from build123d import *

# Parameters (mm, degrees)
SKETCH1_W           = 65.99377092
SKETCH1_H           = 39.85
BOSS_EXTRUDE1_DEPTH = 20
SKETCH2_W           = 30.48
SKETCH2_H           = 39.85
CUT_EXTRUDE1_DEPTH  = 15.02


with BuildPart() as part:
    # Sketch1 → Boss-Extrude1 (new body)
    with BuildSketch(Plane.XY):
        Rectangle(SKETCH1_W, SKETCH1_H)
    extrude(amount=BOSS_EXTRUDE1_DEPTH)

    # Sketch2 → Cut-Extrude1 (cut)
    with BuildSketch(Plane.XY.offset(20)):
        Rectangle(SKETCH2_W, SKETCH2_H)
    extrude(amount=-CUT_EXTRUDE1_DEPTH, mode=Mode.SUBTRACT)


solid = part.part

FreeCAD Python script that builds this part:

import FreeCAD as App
import Part
import Sketcher

doc = App.newDocument("Part")
params = doc.addObject("Spreadsheet::Sheet", "Params")
for row, (alias, value) in enumerate([
    ("sketch1_height", "39.85 mm"),
    ("pad1_length", "20 mm"),
    ("sketch2_width", "30.48 mm"),
    ("sketch2_height", "39.85 mm"),
    ("pocket1_length", "15.02 mm"),
], start=1):
    params.set(f"A{row}", alias)
    params.set(f"B{row}", "=" + value)
    params.setAlias(f"B{row}", alias)

body = doc.addObject("PartDesign::Body", "Body")

sketch1 = body.newObject("Sketcher::SketchObject", "Sketch")
sketch1.AttachmentSupport = (doc.getObject("XY_Plane"), [""])
sketch1.MapMode = "FlatFace"
sketch1.addGeometry([
    Part.LineSegment(App.Vector(-33, 20, 0), App.Vector(-33, -20, 0)),
    Part.LineSegment(App.Vector(-33, -20, 0), App.Vector(33, -20, 0)),
    Part.LineSegment(App.Vector(33, -20, 0), App.Vector(33, 20, 0)),
    Part.LineSegment(App.Vector(33, 20, 0), App.Vector(-33, 20, 0)),
], False)
sketch1.addConstraint([
    Sketcher.Constraint("Coincident", 0, 2, 1, 1),
    Sketcher.Constraint("Coincident", 1, 2, 2, 1),
    Sketcher.Constraint("Coincident", 2, 2, 3, 1),
    Sketcher.Constraint("Coincident", 3, 2, 0, 1),
    Sketcher.Constraint("Vertical", 0),
    Sketcher.Constraint("Horizontal", 1),
    Sketcher.Constraint("Vertical", 2),
    Sketcher.Constraint("Horizontal", 3),
    Sketcher.Constraint("Symmetric", 0, 2, 2, 2, -1, 1),
    Sketcher.Constraint("DistanceY", 0, 2, 0, 1, 39.85),
    Sketcher.Constraint("DistanceX", 1, 1, 1, 2, 65.993771),
])
sketch1.setExpression("Constraints[9]", "Params.sketch1_height")
pad1 = body.newObject("PartDesign::Pad", "Pad")
pad1.Profile = sketch1
pad1.setExpression("Length", "Params.pad1_length")

sketch2 = body.newObject("Sketcher::SketchObject", "Sketch001")
sketch2.AttachmentSupport = (doc.getObject("XY_Plane"), [""])
sketch2.MapMode = "FlatFace"
sketch2.AttachmentOffset = App.Placement(App.Vector(0, 0, 20), App.Rotation())
sketch2.addGeometry([
    Part.LineSegment(App.Vector(-15, 20, 0), App.Vector(-15, -20, 0)),
    Part.LineSegment(App.Vector(-15, -20, 0), App.Vector(15, -20, 0)),
    Part.LineSegment(App.Vector(15, -20, 0), App.Vector(15, 20, 0)),
    Part.LineSegment(App.Vector(15, 20, 0), App.Vector(-15, 20, 0)),
], False)
sketch2.addConstraint([
    Sketcher.Constraint("Coincident", 0, 2, 1, 1),
    Sketcher.Constraint("Coincident", 1, 2, 2, 1),
    Sketcher.Constraint("Coincident", 2, 2, 3, 1),
    Sketcher.Constraint("Coincident", 3, 2, 0, 1),
    Sketcher.Constraint("Vertical", 0),
    Sketcher.Constraint("Horizontal", 1),
    Sketcher.Constraint("Vertical", 2),
    Sketcher.Constraint("Horizontal", 3),
    Sketcher.Constraint("Symmetric", 0, 2, 2, 2, -1, 1),
    Sketcher.Constraint("DistanceX", 1, 1, 1, 2, 30.48),
    Sketcher.Constraint("DistanceY", 0, 2, 0, 1, 39.85),
])
sketch2.setExpression("Constraints[9]", "Params.sketch2_width")
sketch2.setExpression("Constraints[10]", "Params.sketch2_height")
pocket1 = body.newObject("PartDesign::Pocket", "Pocket")
pocket1.Profile = sketch2
pocket1.setExpression("Length", "Params.pocket1_length")

doc.recompute()
